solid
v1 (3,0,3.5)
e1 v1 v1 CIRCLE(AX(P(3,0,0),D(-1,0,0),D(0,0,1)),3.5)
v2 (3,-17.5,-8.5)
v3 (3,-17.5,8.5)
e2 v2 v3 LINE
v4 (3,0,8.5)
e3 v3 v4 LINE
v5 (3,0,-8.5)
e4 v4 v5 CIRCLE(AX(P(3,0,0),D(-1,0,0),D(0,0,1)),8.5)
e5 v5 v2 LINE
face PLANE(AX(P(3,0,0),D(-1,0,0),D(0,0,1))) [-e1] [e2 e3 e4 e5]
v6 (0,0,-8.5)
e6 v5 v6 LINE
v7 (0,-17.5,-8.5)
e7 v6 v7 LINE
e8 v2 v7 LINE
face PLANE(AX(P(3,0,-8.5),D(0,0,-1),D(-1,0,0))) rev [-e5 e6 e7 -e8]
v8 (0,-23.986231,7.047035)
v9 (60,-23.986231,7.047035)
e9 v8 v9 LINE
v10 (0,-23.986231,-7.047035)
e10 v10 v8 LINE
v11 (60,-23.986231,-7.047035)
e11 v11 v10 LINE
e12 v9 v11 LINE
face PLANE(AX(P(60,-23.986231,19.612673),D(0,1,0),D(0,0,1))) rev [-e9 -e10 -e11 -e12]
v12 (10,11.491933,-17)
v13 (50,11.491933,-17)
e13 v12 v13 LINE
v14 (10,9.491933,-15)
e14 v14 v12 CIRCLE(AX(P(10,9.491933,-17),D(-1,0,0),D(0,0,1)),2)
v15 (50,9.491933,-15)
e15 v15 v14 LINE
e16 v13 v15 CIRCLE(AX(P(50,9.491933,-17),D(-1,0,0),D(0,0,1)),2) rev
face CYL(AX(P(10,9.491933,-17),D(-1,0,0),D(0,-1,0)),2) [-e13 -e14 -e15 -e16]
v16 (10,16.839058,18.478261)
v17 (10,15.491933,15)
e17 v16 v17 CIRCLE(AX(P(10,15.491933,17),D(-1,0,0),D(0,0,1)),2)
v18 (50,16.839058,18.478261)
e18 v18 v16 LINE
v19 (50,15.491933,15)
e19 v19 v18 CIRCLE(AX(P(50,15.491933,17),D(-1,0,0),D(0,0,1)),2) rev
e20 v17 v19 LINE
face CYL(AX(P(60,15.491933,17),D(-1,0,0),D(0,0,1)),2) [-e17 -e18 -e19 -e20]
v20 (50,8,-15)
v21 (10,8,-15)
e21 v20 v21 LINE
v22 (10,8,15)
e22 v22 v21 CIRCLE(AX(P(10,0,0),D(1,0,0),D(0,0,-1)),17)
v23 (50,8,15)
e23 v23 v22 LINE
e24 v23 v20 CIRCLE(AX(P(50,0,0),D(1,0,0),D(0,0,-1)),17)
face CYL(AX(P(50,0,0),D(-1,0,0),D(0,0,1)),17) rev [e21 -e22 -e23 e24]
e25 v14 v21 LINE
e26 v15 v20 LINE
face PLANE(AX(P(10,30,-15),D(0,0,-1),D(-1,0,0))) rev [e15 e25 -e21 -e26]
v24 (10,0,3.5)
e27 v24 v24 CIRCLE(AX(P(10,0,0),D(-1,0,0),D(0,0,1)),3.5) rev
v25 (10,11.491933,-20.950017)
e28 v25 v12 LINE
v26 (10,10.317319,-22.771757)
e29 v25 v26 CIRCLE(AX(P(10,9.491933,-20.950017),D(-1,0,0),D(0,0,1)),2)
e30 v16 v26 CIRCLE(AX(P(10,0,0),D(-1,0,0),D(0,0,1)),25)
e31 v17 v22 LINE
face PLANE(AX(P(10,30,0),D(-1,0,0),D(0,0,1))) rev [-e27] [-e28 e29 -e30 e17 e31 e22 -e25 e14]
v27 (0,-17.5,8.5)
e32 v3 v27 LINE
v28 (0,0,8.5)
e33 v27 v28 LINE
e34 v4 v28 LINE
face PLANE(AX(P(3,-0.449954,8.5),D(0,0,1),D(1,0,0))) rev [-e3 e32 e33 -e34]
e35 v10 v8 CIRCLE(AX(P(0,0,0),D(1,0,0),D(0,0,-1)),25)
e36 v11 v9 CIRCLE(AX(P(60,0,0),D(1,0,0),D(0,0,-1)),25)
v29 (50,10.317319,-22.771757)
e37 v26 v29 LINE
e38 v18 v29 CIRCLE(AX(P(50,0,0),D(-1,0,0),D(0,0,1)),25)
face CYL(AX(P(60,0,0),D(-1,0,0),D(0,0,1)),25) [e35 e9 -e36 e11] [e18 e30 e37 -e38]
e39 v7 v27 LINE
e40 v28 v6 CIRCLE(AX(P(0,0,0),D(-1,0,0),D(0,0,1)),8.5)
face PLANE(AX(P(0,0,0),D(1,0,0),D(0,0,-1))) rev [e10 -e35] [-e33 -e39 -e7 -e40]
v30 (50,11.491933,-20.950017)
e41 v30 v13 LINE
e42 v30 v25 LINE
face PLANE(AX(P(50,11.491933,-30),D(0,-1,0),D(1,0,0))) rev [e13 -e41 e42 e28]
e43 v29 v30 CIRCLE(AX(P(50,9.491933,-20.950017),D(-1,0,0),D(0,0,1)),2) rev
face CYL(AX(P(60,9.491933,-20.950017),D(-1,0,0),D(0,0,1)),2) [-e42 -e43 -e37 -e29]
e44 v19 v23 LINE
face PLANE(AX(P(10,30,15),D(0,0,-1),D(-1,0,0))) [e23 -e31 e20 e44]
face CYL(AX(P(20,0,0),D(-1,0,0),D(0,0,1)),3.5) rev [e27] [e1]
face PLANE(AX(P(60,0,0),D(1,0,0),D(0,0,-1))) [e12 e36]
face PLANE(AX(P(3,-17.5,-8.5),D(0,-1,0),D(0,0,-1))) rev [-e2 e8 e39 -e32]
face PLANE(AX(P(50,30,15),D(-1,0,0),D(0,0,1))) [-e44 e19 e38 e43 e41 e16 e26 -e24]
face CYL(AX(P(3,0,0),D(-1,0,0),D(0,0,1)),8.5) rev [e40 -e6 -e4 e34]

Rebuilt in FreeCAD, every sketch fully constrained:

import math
import FreeCAD as App
import Part
import Sketcher
from FreeCAD import Vector


def edges_at(feature, points):
    """Names of the edges that pass closest to the given points."""
    edges = feature.Shape.Edges
    near = lambda p: min(range(len(edges)), key=lambda i: edges[i].distToShape(Part.Vertex(*p))[0])
    return sorted({f"Edge{near(p) + 1}" for p in points})


def add_polygon(sketch, points):
    """Adds a closed chain of lines whose ends are joined by coincident constraints."""
    first, n = sketch.GeometryCount, len(points)
    for a, b in zip(points, points[1:] + points[:1]):
        sketch.addGeometry(Part.LineSegment(App.Vector(*a, 0), App.Vector(*b, 0)), False)
    for i in range(n):
        sketch.addConstraint(Sketcher.Constraint("Coincident", first + i, 2, first + (i + 1) % n, 1))

doc = App.newDocument("Part")
body = doc.addObject("PartDesign::Body", "Body")

sketch1 = body.newObject("Sketcher::SketchObject", "Sketch")
sketch1.AttachmentSupport = (doc.getObject("YZ_Plane"), [""])
sketch1.MapMode = "FlatFace"
sketch1.addGeometry(Part.Circle(Vector(0, 0, 0), Vector(0, 0, 1), 25), False)
sketch1.addConstraint([
    Sketcher.Constraint("Coincident", 0, 3, -1, 1),
    Sketcher.Constraint("Diameter", 0, 50.0),
])
pad1 = body.newObject("PartDesign::Pad", "Pad")
pad1.Profile = sketch1
pad1.Length = 60

sketch2 = body.newObject("Sketcher::SketchObject", "Sketch001")
sketch2.AttachmentSupport = (doc.getObject("XZ_Plane"), [""])
sketch2.MapMode = "FlatFace"
add_polygon(sketch2, [(10, -15), (10, 15), (50, 15), (50, -15)])
sketch2.addConstraint([
    Sketcher.Constraint("Vertical", 0),
    Sketcher.Constraint("Horizontal", 1),
    Sketcher.Constraint("Vertical", 2),
    Sketcher.Constraint("Horizontal", 3),
    Sketcher.Constraint("DistanceX", 1, 1, 1, 2, 40.0),
    Sketcher.Constraint("DistanceY", 0, 1, 0, 2, 30.0),
    Sketcher.Constraint("DistanceX", -1, 1, 0, 2, 10.0),
    Sketcher.Constraint("DistanceY", -1, 1, 0, 2, 15.0),
])
pocket1 = body.newObject("PartDesign::Pocket", "Pocket")
pocket1.Profile = sketch2
pocket1.Length = 30

sketch3 = body.newObject("Sketcher::SketchObject", "Sketch002")
sketch3.AttachmentSupport = (doc.getObject("YZ_Plane"), [""])
sketch3.MapMode = "FlatFace"
sketch3.AttachmentOffset = App.Placement(Vector(0, 0, 30), App.Rotation())
sketch3.addGeometry(Part.Circle(Vector(0, 0, 0), Vector(0, 0, 1), 17), False)
sketch3.addConstraint([
    Sketcher.Constraint("Coincident", 0, 3, -1, 1),
    Sketcher.Constraint("Diameter", 0, 34.0),
])
pocket2 = body.newObject("PartDesign::Pocket", "Pocket001")
pocket2.Profile = sketch3
pocket2.Type = "TwoLengths"
pocket2.Length = 20
pocket2.Length2 = 20
pocket2.Reversed = True
doc.recompute()

fillet = body.newObject("PartDesign::Fillet", "Fillet")
fillet.Base = (pocket2, edges_at(pocket2, [(30, 20, -15), (30, 20, 15)]))
fillet.Radius = 2

sketch4 = body.newObject("Sketcher::SketchObject", "Sketch003")
sketch4.AttachmentSupport = (doc.getObject("YZ_Plane"), [""])
sketch4.MapMode = "FlatFace"
sketch4.addGeometry(Part.Circle(Vector(0, 0, 0), Vector(0, 0, 1), 3.5), False)
sketch4.addConstraint([
    Sketcher.Constraint("Coincident", 0, 3, -1, 1),
    Sketcher.Constraint("Diameter", 0, 7.0),
])
pocket3 = body.newObject("PartDesign::Pocket", "Pocket002")
pocket3.Profile = sketch4
pocket3.Length = 20
pocket3.Reversed = True

sketch5 = body.newObject("Sketcher::SketchObject", "Sketch004")
sketch5.AttachmentSupport = (doc.getObject("YZ_Plane"), [""])
sketch5.MapMode = "FlatFace"
sketch5.addGeometry([
    Part.ArcOfCircle(Part.Circle(Vector(0, 0, 0), Vector(0, 0, 1), 8.5), math.radians(-90), math.radians(90)),
    Part.LineSegment(Vector(0, 8.5, 0), Vector(-17.5, 8.5, 0)),
    Part.LineSegment(Vector(-17.5, 8.5, 0), Vector(-17.5, -8.5, 0)),
    Part.LineSegment(Vector(-17.5, -8.5, 0), Vector(0, -8.5, 0)),
], False)
sketch5.addConstraint([
    Sketcher.Constraint("Tangent", 0, 2, 1, 1),
    Sketcher.Constraint("Coincident", 1, 2, 2, 1),
    Sketcher.Constraint("Coincident", 2, 2, 3, 1),
    Sketcher.Constraint("Tangent", 3, 2, 0, 1),
    Sketcher.Constraint("Horizontal", 1),
    Sketcher.Constraint("Vertical", 2),
    Sketcher.Constraint("Horizontal", 3),
    Sketcher.Constraint("Coincident", 0, 3, -1, 1),
    Sketcher.Constraint("Radius", 0, 8.5),
    Sketcher.Constraint("DistanceX", 1, 2, 1, 1, 17.5),
])
pocket4 = body.newObject("PartDesign::Pocket", "Pocket003")
pocket4.Profile = sketch5
pocket4.Length = 3
pocket4.Reversed = True

sketch6 = body.newObject("Sketcher::SketchObject", "Sketch005")
sketch6.AttachmentSupport = (doc.getObject("YZ_Plane"), [""])
sketch6.MapMode = "FlatFace"
add_polygon(sketch6, [(-25, 19.612673), (-25, -13.394021), (-23.986231, -13.394021), (-23.986231, 19.612673)])
sketch6.addConstraint([
    Sketcher.Constraint("Vertical", 0),
    Sketcher.Constraint("Horizontal", 1),
    Sketcher.Constraint("Vertical", 2),
    Sketcher.Constraint("Horizontal", 3),
    Sketcher.Constraint("DistanceX", 0, 2, -1, 1, 25.0),
    Sketcher.Constraint("DistanceX", 1, 1, 1, 2, 1.013769),
    Sketcher.Constraint("DistanceY", 0, 2, 0, 1, 33.006694),
    Sketcher.Constraint("DistanceY", 0, 2, -1, 1, 13.394021),
])
pocket5 = body.newObject("PartDesign::Pocket", "Pocket004")
pocket5.Profile = sketch6
pocket5.Type = "ThroughAll"
pocket5.Reversed = True

sketch7 = body.newObject("Sketcher::SketchObject", "Sketch006")
sketch7.AttachmentSupport = (doc.getObject("XY_Plane"), [""])
sketch7.MapMode = "FlatFace"
add_polygon(sketch7, [(10, 17.491933), (10, 11.491933), (50, 11.491933), (50, 17.491933)])
sketch7.addConstraint([
    Sketcher.Constraint("Vertical", 0),
    Sketcher.Constraint("Horizontal", 1),
    Sketcher.Constraint("Vertical", 2),
    Sketcher.Constraint("Horizontal", 3),
    Sketcher.Constraint("DistanceX", 1, 1, 1, 2, 40.0),
    Sketcher.Constraint("DistanceY", 0, 2, 0, 1, 6.0),
    Sketcher.Constraint("DistanceX", -1, 1, 0, 2, 10.0),
    Sketcher.Constraint("DistanceY", -1, 1, 0, 2, 11.491933),
])
pocket6 = body.newObject("PartDesign::Pocket", "Pocket005")
pocket6.Profile = sketch7
pocket6.Length = 30
doc.recompute()

fillet2 = body.newObject("PartDesign::Fillet", "Fillet001")
fillet2.Base = (pocket6, edges_at(pocket6, [(30, 11.492, -15), (30, 11.492, -22.202)]))
fillet2.Radius = 2

doc.recompute()
